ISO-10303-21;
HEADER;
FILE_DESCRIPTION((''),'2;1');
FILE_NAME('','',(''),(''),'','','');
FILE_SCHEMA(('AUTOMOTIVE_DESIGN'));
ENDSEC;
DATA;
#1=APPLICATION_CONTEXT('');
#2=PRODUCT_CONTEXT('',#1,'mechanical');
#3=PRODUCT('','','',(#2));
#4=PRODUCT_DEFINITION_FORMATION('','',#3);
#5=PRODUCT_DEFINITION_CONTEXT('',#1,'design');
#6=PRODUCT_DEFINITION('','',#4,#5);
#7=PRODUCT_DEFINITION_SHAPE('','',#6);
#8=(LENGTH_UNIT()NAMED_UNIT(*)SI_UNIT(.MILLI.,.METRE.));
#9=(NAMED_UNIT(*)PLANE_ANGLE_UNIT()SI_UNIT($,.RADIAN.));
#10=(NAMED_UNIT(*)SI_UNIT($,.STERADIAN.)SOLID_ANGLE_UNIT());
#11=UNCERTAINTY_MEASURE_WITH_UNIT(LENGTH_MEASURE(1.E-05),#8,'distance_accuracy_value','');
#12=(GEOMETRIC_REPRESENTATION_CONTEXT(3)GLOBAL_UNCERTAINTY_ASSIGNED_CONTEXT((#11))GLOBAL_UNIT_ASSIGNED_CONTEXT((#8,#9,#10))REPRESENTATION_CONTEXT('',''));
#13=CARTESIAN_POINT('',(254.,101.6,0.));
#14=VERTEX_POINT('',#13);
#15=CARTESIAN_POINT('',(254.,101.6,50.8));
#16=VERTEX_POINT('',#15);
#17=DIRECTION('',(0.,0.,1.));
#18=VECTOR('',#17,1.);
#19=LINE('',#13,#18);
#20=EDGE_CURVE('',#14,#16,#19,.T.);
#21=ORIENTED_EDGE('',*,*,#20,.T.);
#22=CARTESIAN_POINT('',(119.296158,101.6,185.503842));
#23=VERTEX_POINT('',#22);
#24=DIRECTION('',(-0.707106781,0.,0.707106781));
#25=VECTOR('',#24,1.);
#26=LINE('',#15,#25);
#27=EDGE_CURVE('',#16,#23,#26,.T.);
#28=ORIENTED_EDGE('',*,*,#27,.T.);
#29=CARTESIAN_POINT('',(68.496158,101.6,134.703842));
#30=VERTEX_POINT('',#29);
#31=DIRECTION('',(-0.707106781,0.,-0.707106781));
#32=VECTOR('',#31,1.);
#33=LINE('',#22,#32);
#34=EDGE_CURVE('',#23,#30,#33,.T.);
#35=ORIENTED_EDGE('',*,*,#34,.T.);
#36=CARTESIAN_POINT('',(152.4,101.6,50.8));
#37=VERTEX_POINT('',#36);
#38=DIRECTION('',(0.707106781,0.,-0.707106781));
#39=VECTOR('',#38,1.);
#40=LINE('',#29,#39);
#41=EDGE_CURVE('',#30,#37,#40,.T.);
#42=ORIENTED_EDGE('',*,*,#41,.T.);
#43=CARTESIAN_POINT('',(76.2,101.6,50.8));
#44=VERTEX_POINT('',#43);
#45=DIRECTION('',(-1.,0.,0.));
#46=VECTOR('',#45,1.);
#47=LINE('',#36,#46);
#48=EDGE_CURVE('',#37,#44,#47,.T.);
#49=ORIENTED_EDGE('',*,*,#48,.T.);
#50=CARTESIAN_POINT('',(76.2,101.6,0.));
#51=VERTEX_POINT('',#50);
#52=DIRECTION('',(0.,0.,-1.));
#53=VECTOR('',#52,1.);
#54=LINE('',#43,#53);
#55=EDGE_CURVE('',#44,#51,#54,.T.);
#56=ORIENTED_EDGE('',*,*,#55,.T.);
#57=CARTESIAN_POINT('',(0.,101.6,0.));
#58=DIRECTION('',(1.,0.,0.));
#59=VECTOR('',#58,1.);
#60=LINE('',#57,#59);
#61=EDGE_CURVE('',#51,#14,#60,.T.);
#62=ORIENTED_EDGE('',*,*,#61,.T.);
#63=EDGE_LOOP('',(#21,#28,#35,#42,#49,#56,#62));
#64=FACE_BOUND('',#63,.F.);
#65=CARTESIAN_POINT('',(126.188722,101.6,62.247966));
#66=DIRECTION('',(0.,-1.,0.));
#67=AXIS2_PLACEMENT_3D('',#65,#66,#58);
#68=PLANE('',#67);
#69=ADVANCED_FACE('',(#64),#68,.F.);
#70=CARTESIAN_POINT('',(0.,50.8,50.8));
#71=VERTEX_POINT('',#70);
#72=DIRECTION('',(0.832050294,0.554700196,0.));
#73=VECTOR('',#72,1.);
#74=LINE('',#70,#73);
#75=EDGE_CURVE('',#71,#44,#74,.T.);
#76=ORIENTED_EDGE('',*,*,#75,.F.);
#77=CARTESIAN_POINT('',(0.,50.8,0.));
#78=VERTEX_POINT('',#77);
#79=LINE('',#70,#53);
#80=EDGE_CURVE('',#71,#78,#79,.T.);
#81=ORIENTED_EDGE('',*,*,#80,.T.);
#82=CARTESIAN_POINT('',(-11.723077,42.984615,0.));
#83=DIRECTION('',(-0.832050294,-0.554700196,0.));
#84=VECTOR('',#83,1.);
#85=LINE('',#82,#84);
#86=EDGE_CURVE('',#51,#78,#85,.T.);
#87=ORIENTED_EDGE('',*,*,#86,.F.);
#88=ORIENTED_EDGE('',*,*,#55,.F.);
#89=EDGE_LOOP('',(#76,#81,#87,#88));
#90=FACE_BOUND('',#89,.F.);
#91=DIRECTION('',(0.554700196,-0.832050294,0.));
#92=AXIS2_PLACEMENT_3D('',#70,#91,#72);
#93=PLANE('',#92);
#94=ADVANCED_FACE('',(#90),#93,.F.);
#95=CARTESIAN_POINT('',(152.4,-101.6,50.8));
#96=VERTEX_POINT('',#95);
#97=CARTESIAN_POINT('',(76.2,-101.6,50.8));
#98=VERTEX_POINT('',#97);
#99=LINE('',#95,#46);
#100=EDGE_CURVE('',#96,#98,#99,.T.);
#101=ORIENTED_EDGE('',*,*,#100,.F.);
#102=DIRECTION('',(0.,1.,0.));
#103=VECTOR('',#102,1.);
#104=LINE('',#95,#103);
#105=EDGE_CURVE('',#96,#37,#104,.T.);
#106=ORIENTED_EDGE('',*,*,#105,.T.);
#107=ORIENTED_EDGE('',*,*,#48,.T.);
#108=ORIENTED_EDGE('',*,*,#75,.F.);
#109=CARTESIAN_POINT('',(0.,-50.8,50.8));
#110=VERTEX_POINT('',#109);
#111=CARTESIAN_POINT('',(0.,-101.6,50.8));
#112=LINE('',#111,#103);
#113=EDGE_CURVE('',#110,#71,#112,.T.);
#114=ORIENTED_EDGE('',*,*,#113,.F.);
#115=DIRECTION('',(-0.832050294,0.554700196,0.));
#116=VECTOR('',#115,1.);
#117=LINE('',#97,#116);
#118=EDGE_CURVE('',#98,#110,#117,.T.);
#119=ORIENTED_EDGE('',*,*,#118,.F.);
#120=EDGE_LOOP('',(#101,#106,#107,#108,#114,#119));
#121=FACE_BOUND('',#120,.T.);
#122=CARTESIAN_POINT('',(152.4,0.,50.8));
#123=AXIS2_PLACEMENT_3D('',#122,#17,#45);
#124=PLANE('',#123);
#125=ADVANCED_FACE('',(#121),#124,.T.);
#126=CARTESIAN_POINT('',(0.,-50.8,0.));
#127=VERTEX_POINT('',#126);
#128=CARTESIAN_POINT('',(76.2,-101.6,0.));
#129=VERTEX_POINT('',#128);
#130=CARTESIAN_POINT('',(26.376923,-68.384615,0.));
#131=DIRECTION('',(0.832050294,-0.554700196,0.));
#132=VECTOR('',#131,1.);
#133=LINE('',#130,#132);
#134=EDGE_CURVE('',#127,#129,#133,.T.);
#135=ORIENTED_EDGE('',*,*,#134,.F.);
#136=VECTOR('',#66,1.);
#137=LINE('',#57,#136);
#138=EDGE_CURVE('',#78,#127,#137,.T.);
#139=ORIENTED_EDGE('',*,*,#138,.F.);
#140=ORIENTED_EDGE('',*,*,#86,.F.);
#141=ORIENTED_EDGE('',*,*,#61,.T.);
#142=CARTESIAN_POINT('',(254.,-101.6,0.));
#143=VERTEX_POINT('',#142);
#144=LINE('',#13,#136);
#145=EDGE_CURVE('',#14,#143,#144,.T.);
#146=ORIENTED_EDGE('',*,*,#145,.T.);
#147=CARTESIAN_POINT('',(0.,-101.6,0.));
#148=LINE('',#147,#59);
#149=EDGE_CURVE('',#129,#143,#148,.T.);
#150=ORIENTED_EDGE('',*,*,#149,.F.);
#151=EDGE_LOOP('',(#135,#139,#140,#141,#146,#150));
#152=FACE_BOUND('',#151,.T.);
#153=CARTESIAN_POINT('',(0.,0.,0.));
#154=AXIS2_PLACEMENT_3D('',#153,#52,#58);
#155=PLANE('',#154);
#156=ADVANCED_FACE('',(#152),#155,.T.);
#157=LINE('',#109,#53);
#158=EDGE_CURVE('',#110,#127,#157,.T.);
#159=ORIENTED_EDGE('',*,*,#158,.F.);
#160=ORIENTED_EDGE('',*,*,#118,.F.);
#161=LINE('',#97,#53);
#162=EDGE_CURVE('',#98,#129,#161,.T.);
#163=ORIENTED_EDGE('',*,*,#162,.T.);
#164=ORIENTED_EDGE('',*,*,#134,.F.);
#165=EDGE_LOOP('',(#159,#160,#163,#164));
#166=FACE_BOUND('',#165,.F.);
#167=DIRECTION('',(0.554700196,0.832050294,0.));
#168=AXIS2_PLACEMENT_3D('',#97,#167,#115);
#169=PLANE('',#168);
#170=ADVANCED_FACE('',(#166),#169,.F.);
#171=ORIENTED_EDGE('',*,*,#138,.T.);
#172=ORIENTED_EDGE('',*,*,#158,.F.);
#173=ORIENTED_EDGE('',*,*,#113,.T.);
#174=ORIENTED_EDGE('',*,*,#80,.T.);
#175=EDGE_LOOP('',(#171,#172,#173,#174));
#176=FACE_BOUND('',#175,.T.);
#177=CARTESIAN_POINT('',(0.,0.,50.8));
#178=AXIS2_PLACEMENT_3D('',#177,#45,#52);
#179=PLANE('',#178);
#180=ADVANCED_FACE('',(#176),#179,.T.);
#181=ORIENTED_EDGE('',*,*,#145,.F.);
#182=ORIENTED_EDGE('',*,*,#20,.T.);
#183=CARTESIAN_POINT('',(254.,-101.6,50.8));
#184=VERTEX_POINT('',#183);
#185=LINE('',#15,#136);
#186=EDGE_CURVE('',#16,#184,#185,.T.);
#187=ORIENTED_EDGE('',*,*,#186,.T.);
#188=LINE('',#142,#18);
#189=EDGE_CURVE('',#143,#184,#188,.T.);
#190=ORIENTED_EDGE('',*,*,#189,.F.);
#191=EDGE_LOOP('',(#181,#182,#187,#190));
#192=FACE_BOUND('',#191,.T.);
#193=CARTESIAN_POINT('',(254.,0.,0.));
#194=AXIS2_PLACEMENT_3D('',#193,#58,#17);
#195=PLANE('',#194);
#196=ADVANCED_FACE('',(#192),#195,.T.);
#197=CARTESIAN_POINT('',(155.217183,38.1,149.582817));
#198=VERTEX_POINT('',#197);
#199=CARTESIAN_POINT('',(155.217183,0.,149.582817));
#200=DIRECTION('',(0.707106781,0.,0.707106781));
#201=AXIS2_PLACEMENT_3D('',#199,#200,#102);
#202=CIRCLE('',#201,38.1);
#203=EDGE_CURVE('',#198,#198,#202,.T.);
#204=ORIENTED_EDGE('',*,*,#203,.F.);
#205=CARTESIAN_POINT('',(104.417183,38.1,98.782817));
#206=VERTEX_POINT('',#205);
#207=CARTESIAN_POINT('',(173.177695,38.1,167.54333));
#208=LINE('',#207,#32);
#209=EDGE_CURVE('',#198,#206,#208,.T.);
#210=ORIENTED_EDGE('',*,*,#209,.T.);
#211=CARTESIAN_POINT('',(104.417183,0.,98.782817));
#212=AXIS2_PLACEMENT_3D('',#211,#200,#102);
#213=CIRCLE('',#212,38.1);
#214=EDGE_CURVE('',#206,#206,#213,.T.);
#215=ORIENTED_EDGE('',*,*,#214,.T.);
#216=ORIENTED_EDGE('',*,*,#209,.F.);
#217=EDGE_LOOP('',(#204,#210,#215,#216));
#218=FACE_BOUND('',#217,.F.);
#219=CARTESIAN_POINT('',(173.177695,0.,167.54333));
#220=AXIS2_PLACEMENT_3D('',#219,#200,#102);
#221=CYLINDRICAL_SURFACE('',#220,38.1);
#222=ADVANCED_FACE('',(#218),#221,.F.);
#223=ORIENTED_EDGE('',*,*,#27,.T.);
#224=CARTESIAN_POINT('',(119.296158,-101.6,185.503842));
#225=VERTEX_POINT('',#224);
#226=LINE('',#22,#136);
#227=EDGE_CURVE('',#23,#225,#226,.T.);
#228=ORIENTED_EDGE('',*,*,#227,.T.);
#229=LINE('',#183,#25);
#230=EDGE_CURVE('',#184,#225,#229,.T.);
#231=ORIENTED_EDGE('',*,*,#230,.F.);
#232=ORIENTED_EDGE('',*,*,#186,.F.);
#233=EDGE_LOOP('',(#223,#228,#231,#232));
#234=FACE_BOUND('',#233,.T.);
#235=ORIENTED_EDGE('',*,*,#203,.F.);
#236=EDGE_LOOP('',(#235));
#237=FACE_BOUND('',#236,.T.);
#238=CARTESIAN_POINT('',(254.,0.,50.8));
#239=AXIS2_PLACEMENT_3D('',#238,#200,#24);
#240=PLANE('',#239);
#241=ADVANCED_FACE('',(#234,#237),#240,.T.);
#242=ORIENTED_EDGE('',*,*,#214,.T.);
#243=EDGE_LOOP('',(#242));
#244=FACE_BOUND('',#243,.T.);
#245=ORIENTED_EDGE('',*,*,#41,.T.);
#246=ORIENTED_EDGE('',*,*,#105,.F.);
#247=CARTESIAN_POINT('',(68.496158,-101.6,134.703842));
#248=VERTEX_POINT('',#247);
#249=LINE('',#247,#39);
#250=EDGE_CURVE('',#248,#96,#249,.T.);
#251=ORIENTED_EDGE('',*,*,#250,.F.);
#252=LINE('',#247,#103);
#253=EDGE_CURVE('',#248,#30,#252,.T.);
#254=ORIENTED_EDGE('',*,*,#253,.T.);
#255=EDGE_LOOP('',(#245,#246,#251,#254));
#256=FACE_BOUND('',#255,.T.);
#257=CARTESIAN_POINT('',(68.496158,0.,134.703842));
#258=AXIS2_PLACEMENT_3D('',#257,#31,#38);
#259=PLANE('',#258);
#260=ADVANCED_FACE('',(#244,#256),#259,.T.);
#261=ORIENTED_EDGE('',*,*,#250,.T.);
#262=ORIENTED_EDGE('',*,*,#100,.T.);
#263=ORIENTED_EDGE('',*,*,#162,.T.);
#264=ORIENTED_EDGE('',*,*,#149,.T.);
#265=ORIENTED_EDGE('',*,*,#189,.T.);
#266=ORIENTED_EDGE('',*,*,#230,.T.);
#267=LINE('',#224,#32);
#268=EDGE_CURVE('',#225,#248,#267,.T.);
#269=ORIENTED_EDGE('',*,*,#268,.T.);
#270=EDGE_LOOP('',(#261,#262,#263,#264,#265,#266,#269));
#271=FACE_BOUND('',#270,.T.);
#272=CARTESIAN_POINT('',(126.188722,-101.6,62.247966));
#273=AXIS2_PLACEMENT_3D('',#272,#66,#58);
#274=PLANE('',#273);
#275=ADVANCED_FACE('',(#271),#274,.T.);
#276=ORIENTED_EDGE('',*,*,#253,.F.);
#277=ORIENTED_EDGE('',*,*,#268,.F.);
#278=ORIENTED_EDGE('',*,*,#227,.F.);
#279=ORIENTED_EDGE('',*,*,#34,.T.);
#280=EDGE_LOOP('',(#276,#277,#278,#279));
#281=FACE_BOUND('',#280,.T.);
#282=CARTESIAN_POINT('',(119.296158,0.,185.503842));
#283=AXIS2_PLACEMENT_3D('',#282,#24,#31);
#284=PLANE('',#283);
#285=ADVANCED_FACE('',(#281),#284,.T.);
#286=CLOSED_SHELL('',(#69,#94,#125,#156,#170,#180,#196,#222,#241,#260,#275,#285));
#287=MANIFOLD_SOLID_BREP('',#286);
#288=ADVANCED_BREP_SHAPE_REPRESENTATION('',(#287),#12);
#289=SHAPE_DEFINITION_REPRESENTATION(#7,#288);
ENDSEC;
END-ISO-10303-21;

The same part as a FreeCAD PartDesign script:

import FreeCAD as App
import Part
import Sketcher
Q = App.Units.Quantity


def add_polygon(sketch, points):
    """Adds a closed chain of lines whose ends are joined by coincident constraints."""
    first, n = sketch.GeometryCount, len(points)
    for a, b in zip(points, points[1:] + points[:1]):
        sketch.addGeometry(Part.LineSegment(App.Vector(*a, 0), App.Vector(*b, 0)), False)
    for i in range(n):
        sketch.addConstraint(Sketcher.Constraint("Coincident", first + i, 2, first + (i + 1) % n, 1))

doc = App.newDocument("Part")
body = doc.addObject("PartDesign::Body", "Body")

# Sketch on XZ plane
sketch1 = doc.addObject("Sketcher::SketchObject", "Sketch")
body.addObject(sketch1)
sketch1.AttachmentSupport = (doc.XZ_Plane, [""])
sketch1.MapMode = "FlatFace"
add_polygon(sketch1, [(0, 51), (0, 0), (254, 0), (254, 51), (119, 186), (68, 135), (152, 51)])  # lines 0-6
sketch1.addConstraint(Sketcher.Constraint("Vertical", 0))
sketch1.addConstraint(Sketcher.Constraint("Horizontal", 1))
sketch1.addConstraint(Sketcher.Constraint("Vertical", 2))
sketch1.addConstraint(Sketcher.Constraint("Horizontal", 6))
sketch1.addConstraint(Sketcher.Constraint("Coincident", 0, 2, -1, 1))
sketch1.addConstraint(Sketcher.Constraint("Perpendicular", 3, 4))
sketch1.addConstraint(Sketcher.Constraint("Perpendicular", 4, 5))
sketch1.addConstraint(Sketcher.Constraint("Horizontal", 2, 2, 5, 2))
sketch1.addConstraint(Sketcher.Constraint("DistanceX", 1, 1, 1, 2, Q("10 in")))
sketch1.addConstraint(Sketcher.Constraint("DistanceX", 6, 2, 6, 1, Q("6 in")))
sketch1.addConstraint(Sketcher.Constraint("DistanceY", 0, 2, 0, 1, Q("2 in")))
sketch1.addConstraint(Sketcher.Constraint("Angle", 3, Q("135 deg")))
sketch1.addConstraint(Sketcher.Constraint("Distance", 3, Q("7.5 in")))
pad1 = doc.addObject("PartDesign::Pad", "Pad")
body.addObject(pad1)
pad1.Profile = sketch1
pad1.Length = Q("8 in")
pad1.Midplane = True

# Sketch on XY plane
sketch2 = doc.addObject("Sketcher::SketchObject", "Sketch001")
body.addObject(sketch2)
sketch2.AttachmentSupport = (doc.XY_Plane, [""])
sketch2.MapMode = "FlatFace"
sketch2.AttachmentOffset = App.Placement(App.Vector(0, 0, 2 * 25.4), App.Rotation())
add_polygon(sketch2, [(76, 102), (0, 102), (0, 51)])  # lines 0-2
add_polygon(sketch2, [(76, -102), (0, -51), (0, -102)])  # lines 3-5
sketch2.addConstraint(Sketcher.Constraint("Horizontal", 0))
sketch2.addConstraint(Sketcher.Constraint("Vertical", 1))
sketch2.addConstraint(Sketcher.Constraint("Vertical", 4))
sketch2.addConstraint(Sketcher.Constraint("Horizontal", 5))
sketch2.addConstraint(Sketcher.Constraint("Symmetric", 1, 2, 3, 2, -1, 1))
sketch2.addConstraint(Sketcher.Constraint("Symmetric", 0, 2, 4, 2, -1))
sketch2.addConstraint(Sketcher.Constraint("Vertical", 2, 2, 5, 2))
sketch2.addConstraint(Sketcher.Constraint("DistanceX", 0, 2, 0, 1, Q("3 in")))
sketch2.addConstraint(Sketcher.Constraint("DistanceY", 1, 2, 1, 1, Q("2 in")))
sketch2.addConstraint(Sketcher.Constraint("DistanceY", -1, 1, 0, 2, Q("4 in")))
pocket1 = doc.addObject("PartDesign::Pocket", "Pocket")
body.addObject(pocket1)
pocket1.Profile = sketch2
pocket1.Type = "ThroughAll"

# Sketch on an angled plane
sketch3 = doc.addObject("Sketcher::SketchObject", "Sketch002")
body.addObject(sketch3)
sketch3.Placement = App.Placement(App.Vector(170.360512, 0, 170.360512), App.Rotation(App.Vector(0, 1, 0), App.Vector(-0.707106781, 0, 0.707106781), App.Vector(0.707106781, 0, 0.707106781), "ZXY"))
sketch3.addGeometry(Part.Circle(App.Vector(0, -4, 0), App.Vector(0, 0, 1), 38), False)
sketch3.addConstraint(Sketcher.Constraint("PointOnObject", 0, 3, -2))
sketch3.addConstraint(Sketcher.Constraint("Diameter", 0, Q("3 in")))
sketch3.addConstraint(Sketcher.Constraint("DistanceY", 0, 3, -1, 1, Q("3.984098 mm")))
pocket2 = doc.addObject("PartDesign::Pocket", "Pocket001")
body.addObject(pocket2)
pocket2.Profile = sketch3
pocket2.Type = "TwoLengths"
pocket2.Length = Q("4 in")
pocket2.Length2 = Q("4 in")
pocket2.Reversed = True

doc.recompute()
